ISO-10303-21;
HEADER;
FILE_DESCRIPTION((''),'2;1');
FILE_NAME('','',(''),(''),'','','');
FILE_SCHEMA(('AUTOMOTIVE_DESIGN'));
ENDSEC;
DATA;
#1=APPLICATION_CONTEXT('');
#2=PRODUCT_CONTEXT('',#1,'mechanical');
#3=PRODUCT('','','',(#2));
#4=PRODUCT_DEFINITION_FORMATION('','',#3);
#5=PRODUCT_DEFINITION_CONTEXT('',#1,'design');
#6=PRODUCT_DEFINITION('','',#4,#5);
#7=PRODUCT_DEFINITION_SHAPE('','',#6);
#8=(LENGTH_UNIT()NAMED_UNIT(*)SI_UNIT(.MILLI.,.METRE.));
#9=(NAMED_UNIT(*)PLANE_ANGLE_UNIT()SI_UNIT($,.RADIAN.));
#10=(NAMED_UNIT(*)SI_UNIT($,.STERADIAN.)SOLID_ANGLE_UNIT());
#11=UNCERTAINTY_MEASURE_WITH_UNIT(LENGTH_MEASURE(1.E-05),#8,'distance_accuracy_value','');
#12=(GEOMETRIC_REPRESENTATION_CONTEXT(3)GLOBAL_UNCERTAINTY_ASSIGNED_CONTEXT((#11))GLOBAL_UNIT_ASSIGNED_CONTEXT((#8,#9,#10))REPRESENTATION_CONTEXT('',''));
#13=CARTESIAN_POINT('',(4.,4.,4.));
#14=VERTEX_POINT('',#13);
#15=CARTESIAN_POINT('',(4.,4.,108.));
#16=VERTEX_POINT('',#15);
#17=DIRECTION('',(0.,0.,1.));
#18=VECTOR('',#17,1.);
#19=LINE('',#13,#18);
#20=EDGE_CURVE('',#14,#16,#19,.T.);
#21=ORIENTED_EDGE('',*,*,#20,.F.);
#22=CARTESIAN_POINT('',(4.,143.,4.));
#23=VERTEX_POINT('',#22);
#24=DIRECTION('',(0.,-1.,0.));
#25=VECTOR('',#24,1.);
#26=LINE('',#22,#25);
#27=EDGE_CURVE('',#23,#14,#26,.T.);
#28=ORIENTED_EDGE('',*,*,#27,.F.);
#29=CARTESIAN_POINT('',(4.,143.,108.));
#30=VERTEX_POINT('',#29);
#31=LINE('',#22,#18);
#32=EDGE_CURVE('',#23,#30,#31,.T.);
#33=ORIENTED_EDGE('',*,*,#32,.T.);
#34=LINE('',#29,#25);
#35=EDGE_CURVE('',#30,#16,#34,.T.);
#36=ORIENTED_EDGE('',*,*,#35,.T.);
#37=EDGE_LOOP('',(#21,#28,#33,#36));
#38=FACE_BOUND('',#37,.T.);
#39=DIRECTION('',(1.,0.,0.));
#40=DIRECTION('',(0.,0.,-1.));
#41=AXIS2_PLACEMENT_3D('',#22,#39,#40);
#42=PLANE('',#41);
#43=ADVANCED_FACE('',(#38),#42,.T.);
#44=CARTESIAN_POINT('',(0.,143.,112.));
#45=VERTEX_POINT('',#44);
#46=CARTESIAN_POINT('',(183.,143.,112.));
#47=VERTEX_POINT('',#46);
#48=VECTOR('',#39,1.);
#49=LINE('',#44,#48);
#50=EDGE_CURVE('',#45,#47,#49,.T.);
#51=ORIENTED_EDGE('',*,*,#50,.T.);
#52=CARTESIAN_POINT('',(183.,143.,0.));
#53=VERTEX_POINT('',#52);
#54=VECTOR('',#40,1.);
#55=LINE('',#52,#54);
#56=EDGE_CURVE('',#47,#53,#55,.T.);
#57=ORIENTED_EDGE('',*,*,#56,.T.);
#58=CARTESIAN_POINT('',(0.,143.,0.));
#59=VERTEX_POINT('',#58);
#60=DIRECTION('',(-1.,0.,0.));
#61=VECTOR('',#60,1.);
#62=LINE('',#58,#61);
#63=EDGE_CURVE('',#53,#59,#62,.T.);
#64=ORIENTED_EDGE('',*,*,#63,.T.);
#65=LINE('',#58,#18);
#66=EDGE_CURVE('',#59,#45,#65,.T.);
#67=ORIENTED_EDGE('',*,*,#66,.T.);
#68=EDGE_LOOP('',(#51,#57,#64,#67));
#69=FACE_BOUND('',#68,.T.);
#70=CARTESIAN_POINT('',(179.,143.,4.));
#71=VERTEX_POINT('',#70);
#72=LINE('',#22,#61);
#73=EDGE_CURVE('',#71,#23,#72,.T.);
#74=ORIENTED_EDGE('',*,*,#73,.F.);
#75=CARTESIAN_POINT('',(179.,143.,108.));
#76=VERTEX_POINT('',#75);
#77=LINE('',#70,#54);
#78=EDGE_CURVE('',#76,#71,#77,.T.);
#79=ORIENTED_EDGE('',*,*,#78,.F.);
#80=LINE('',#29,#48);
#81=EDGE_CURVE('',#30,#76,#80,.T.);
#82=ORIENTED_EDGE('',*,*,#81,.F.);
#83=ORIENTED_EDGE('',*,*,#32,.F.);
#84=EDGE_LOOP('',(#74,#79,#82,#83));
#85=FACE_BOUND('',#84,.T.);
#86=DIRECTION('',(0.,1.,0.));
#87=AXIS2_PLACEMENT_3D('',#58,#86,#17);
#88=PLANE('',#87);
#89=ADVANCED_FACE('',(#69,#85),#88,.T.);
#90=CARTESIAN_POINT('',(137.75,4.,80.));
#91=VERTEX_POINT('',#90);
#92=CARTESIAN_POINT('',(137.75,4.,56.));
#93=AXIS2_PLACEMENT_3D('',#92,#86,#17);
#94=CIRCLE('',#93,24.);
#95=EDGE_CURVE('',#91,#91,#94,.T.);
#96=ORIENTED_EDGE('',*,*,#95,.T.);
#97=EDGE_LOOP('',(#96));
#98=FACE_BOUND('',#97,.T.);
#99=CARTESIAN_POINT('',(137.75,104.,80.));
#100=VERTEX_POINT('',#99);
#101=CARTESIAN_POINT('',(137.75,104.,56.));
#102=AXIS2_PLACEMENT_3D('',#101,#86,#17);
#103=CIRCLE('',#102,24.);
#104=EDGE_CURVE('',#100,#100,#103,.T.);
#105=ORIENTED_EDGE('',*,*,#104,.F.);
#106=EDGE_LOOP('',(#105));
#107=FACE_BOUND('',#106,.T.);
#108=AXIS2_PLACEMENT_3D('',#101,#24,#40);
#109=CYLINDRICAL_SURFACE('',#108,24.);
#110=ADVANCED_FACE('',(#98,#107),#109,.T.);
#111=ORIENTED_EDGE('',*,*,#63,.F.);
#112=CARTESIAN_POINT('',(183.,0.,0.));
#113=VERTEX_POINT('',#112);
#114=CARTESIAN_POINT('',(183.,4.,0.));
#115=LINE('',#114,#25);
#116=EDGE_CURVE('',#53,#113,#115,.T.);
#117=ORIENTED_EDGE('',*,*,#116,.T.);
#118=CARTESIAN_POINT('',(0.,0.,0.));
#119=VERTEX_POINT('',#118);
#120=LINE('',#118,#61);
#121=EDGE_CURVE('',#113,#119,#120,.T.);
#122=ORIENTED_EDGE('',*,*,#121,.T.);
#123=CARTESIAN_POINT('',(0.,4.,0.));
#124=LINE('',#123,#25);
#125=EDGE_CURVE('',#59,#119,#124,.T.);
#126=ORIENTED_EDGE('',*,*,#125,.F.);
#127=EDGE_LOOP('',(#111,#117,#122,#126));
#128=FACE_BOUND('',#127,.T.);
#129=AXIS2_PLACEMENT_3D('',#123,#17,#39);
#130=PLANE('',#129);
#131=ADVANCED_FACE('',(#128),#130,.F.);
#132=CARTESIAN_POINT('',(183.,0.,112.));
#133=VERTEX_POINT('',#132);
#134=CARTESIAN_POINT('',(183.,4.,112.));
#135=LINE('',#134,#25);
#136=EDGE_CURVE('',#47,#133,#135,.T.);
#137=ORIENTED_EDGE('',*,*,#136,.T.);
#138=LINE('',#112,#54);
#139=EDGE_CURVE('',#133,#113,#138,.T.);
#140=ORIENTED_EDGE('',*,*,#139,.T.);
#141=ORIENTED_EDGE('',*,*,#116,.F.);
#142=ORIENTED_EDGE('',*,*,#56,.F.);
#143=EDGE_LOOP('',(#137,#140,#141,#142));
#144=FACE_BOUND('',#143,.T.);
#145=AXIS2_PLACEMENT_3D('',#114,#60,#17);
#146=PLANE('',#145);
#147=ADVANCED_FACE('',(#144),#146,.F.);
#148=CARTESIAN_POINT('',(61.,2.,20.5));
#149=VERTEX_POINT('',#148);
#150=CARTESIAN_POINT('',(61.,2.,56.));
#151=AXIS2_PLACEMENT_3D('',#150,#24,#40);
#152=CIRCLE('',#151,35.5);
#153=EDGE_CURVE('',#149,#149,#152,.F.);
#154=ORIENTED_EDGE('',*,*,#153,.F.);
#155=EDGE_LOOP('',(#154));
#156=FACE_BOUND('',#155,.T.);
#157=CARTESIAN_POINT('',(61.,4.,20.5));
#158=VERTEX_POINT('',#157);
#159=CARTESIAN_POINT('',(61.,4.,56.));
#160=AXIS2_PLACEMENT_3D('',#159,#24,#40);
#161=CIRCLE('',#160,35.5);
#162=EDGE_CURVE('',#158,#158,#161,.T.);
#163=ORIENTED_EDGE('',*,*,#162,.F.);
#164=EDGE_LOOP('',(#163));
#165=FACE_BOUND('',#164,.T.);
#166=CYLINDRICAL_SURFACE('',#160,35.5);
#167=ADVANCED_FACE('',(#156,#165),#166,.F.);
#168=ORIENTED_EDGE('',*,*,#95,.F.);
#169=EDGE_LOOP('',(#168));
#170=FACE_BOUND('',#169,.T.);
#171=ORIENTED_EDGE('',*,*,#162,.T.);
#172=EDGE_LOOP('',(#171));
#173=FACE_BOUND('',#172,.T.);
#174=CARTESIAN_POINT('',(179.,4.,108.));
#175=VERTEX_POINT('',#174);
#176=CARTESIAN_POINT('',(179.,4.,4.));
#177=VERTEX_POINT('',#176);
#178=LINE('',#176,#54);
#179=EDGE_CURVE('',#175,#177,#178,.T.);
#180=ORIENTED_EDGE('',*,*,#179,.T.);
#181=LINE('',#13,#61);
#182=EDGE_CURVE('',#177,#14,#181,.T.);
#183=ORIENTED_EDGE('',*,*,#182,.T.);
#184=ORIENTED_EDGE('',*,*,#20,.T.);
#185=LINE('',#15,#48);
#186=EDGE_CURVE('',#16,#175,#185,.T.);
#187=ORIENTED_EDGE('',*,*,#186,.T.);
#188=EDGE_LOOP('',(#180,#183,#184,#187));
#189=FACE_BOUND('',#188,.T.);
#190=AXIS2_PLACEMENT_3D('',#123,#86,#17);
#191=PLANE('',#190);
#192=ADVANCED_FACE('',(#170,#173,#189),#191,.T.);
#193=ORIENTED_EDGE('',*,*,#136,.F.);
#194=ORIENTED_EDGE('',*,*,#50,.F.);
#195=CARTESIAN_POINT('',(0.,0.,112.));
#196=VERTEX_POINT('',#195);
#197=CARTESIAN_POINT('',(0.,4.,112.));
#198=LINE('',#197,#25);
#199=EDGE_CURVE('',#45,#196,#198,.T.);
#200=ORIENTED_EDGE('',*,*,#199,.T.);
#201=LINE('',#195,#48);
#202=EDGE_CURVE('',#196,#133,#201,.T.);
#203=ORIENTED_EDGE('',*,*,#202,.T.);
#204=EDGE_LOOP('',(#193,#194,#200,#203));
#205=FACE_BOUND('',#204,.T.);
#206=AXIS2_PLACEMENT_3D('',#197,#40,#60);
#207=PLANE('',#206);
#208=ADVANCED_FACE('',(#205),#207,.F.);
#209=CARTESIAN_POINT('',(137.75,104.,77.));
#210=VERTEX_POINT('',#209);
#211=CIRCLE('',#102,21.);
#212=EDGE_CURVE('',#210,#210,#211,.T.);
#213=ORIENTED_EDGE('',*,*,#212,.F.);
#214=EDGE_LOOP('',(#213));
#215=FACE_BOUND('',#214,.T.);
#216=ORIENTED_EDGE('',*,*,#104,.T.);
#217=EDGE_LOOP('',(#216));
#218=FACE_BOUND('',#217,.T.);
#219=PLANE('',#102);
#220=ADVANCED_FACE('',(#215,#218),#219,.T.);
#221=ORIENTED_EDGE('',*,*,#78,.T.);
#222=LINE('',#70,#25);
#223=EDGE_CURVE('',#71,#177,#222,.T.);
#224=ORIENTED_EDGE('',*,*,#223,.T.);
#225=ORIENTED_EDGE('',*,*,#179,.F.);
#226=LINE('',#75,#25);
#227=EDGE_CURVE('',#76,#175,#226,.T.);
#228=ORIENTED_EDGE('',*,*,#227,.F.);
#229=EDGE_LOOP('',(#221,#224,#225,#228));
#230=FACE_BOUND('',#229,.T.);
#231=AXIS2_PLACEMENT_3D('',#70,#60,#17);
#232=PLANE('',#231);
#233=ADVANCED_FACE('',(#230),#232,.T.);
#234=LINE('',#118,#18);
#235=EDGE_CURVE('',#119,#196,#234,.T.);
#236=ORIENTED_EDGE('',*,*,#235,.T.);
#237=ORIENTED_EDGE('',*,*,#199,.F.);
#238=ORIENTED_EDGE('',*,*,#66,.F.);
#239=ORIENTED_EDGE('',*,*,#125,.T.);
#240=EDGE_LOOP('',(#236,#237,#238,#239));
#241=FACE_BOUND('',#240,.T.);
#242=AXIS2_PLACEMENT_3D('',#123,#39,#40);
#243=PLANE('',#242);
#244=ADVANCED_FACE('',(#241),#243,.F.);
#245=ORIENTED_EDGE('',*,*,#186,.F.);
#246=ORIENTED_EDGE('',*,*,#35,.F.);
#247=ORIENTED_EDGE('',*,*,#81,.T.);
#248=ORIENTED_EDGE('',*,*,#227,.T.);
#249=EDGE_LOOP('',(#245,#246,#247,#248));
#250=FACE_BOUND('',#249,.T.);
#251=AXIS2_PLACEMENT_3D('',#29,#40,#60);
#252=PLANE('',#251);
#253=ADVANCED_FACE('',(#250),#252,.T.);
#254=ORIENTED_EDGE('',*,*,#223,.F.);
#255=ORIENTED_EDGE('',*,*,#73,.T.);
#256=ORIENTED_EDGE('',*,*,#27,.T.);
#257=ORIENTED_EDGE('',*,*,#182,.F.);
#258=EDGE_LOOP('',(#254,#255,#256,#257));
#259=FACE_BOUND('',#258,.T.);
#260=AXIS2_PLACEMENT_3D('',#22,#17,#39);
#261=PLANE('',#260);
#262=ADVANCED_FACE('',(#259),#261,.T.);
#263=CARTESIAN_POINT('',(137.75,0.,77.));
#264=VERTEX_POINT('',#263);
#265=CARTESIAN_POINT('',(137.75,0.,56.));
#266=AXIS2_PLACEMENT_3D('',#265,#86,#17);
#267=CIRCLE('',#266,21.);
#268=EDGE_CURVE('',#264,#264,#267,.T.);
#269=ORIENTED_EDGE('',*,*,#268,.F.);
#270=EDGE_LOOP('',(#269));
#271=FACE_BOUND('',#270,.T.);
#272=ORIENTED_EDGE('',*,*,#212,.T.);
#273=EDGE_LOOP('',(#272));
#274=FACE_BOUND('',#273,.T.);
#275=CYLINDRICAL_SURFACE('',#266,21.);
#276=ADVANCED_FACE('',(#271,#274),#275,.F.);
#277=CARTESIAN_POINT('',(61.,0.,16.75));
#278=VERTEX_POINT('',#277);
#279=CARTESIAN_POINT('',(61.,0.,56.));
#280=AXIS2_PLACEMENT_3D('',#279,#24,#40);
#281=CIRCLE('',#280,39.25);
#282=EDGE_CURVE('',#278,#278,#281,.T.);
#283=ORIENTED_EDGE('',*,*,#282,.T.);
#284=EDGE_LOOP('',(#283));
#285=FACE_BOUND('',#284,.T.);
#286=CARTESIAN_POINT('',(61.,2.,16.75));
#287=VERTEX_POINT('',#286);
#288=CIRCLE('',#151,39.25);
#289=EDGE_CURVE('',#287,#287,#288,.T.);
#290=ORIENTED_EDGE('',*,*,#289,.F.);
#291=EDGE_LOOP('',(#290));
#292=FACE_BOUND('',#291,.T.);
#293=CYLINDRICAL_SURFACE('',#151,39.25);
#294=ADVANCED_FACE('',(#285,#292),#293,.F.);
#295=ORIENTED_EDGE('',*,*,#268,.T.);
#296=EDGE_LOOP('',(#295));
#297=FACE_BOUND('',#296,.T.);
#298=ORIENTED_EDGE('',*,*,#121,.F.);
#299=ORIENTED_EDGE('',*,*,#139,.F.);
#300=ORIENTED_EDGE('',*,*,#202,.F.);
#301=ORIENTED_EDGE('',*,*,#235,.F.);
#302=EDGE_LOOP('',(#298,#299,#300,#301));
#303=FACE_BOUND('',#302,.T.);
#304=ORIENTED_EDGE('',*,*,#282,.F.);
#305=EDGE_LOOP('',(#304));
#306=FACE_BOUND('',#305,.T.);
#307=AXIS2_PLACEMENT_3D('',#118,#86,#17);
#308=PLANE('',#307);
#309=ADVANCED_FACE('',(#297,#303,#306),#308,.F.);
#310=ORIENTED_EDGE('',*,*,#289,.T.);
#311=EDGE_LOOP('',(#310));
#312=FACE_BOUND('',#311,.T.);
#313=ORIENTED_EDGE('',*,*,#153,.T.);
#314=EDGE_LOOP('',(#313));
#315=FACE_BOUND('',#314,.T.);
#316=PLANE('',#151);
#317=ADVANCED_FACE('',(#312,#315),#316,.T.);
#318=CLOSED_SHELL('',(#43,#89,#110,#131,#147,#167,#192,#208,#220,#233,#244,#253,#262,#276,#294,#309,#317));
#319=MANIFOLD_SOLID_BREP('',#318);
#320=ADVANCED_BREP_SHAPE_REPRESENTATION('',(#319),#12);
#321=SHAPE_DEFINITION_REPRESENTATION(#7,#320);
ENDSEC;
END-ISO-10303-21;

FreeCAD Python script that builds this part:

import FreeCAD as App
import Part
import Sketcher
from FreeCAD import Vector

doc = App.newDocument("Part")
body = doc.addObject("PartDesign::Body", "Body")

sketch1 = doc.addObject("Sketcher::SketchObject", "Sketch")
body.addObject(sketch1)
sketch1.AttachmentSupport = (doc.XZ_Plane, [""])
sketch1.MapMode = "FlatFace"
sketch1.addGeometry(Part.LineSegment(Vector(0, 0, 0), Vector(0, 112, 0)), False)
sketch1.addGeometry(Part.LineSegment(Vector(0, 112, 0), Vector(183, 112, 0)), False)
sketch1.addGeometry(Part.LineSegment(Vector(183, 112, 0), Vector(183, 0, 0)), False)
sketch1.addGeometry(Part.LineSegment(Vector(183, 0, 0), Vector(0, 0, 0)), False)
sketch1.addConstraint(Sketcher.Constraint("Coincident", 0, 2, 1, 1))
sketch1.addConstraint(Sketcher.Constraint("Coincident", 1, 2, 2, 1))
sketch1.addConstraint(Sketcher.Constraint("Coincident", 2, 2, 3, 1))
sketch1.addConstraint(Sketcher.Constraint("Coincident", 3, 2, 0, 1))
sketch1.addConstraint(Sketcher.Constraint("Vertical", 0))
sketch1.addConstraint(Sketcher.Constraint("Horizontal", 1))
sketch1.addConstraint(Sketcher.Constraint("Vertical", 2))
sketch1.addConstraint(Sketcher.Constraint("Horizontal", 3))
sketch1.addConstraint(Sketcher.Constraint("Coincident", 3, 2, -1, 1))
sketch1.addConstraint(Sketcher.Constraint("DistanceX", 1, 1, 1, 2, 183.0))
sketch1.addConstraint(Sketcher.Constraint("DistanceY", 0, 1, 0, 2, 112.0))
pad1 = doc.addObject("PartDesign::Pad", "Pad")
body.addObject(pad1)
pad1.Profile = sketch1
pad1.Length = 4
pad1.Reversed = True

sketch2 = doc.addObject("Sketcher::SketchObject", "Sketch001")
body.addObject(sketch2)
sketch2.AttachmentSupport = (doc.XZ_Plane, [""])
sketch2.MapMode = "FlatFace"
sketch2.AttachmentOffset = App.Placement(Vector(0, 0, -4), App.Rotation())
sketch2.addGeometry(Part.LineSegment(Vector(0, 0, 0), Vector(0, 112, 0)), False)
sketch2.addGeometry(Part.LineSegment(Vector(0, 112, 0), Vector(183, 112, 0)), False)
sketch2.addGeometry(Part.LineSegment(Vector(183, 112, 0), Vector(183, 0, 0)), False)
sketch2.addGeometry(Part.LineSegment(Vector(183, 0, 0), Vector(0, 0, 0)), False)
sketch2.addGeometry(Part.LineSegment(Vector(179, 108, 0), Vector(4, 108, 0)), False)
sketch2.addGeometry(Part.LineSegment(Vector(4, 108, 0), Vector(4, 4, 0)), False)
sketch2.addGeometry(Part.LineSegment(Vector(4, 4, 0), Vector(179, 4, 0)), False)
sketch2.addGeometry(Part.LineSegment(Vector(179, 4, 0), Vector(179, 108, 0)), False)
sketch2.addConstraint(Sketcher.Constraint("Coincident", 0, 2, 1, 1))
sketch2.addConstraint(Sketcher.Constraint("Coincident", 1, 2, 2, 1))
sketch2.addConstraint(Sketcher.Constraint("Coincident", 2, 2, 3, 1))
sketch2.addConstraint(Sketcher.Constraint("Coincident", 3, 2, 0, 1))
sketch2.addConstraint(Sketcher.Constraint("Coincident", 4, 2, 5, 1))
sketch2.addConstraint(Sketcher.Constraint("Coincident", 5, 2, 6, 1))
sketch2.addConstraint(Sketcher.Constraint("Coincident", 6, 2, 7, 1))
sketch2.addConstraint(Sketcher.Constraint("Coincident", 7, 2, 4, 1))
sketch2.addConstraint(Sketcher.Constraint("Vertical", 0))
sketch2.addConstraint(Sketcher.Constraint("Horizontal", 1))
sketch2.addConstraint(Sketcher.Constraint("Vertical", 2))
sketch2.addConstraint(Sketcher.Constraint("Horizontal", 3))
sketch2.addConstraint(Sketcher.Constraint("Horizontal", 4))
sketch2.addConstraint(Sketcher.Constraint("Vertical", 5))
sketch2.addConstraint(Sketcher.Constraint("Horizontal", 6))
sketch2.addConstraint(Sketcher.Constraint("Vertical", 7))
sketch2.addConstraint(Sketcher.Constraint("Coincident", 3, 2, -1, 1))
sketch2.addConstraint(Sketcher.Constraint("DistanceX", 1, 1, 1, 2, 183.0))
sketch2.addConstraint(Sketcher.Constraint("DistanceX", 4, 2, 4, 1, 175.0))
sketch2.addConstraint(Sketcher.Constraint("DistanceY", 0, 1, 0, 2, 112.0))
sketch2.addConstraint(Sketcher.Constraint("DistanceY", 5, 2, 5, 1, 104.0))
sketch2.addConstraint(Sketcher.Constraint("DistanceX", -1, 1, 4, 2, 4.0))
sketch2.addConstraint(Sketcher.Constraint("DistanceY", -1, 1, 4, 2, 108.0))
pad2 = doc.addObject("PartDesign::Pad", "Pad001")
body.addObject(pad2)
pad2.Profile = sketch2
pad2.Length = 139
pad2.Reversed = True

sketch3 = doc.addObject("Sketcher::SketchObject", "Sketch002")
body.addObject(sketch3)
sketch3.AttachmentSupport = (doc.XZ_Plane, [""])
sketch3.MapMode = "FlatFace"
sketch3.addGeometry(Part.Circle(Vector(61, 56, 0), Vector(0, 0, 1), 36), False)
sketch3.addConstraint(Sketcher.Constraint("Diameter", 0, 71.0))
sketch3.addConstraint(Sketcher.Constraint("DistanceX", -1, 1, 0, 3, 61.0))
sketch3.addConstraint(Sketcher.Constraint("DistanceY", -1, 1, 0, 3, 56.0))
pocket1 = doc.addObject("PartDesign::Pocket", "Pocket")
body.addObject(pocket1)
pocket1.Profile = sketch3
pocket1.Length = 4

sketch4 = doc.addObject("Sketcher::SketchObject", "Sketch003")
body.addObject(sketch4)
sketch4.AttachmentSupport = (doc.XZ_Plane, [""])
sketch4.MapMode = "FlatFace"
sketch4.addGeometry(Part.Circle(Vector(61, 56, 0), Vector(0, 0, 1), 39), False)
sketch4.addConstraint(Sketcher.Constraint("Diameter", 0, 78.5))
sketch4.addConstraint(Sketcher.Constraint("DistanceX", -1, 1, 0, 3, 61.0))
sketch4.addConstraint(Sketcher.Constraint("DistanceY", -1, 1, 0, 3, 56.0))
pocket2 = doc.addObject("PartDesign::Pocket", "Pocket001")
body.addObject(pocket2)
pocket2.Profile = sketch4
pocket2.Length = 2

sketch5 = doc.addObject("Sketcher::SketchObject", "Sketch004")
body.addObject(sketch5)
sketch5.AttachmentSupport = (doc.XZ_Plane, [""])
sketch5.MapMode = "FlatFace"
sketch5.AttachmentOffset = App.Placement(Vector(0, 0, -4), App.Rotation())
sketch5.addGeometry(Part.Circle(Vector(138, 56, 0), Vector(0, 0, 1), 21), False)
sketch5.addConstraint(Sketcher.Constraint("Diameter", 0, 42.0))
sketch5.addConstraint(Sketcher.Constraint("DistanceY", -1, 1, 0, 3, 56.0))
sketch5.addConstraint(Sketcher.Constraint("DistanceX", -1, 1, 0, 3, 137.75))
pocket3 = doc.addObject("PartDesign::Pocket", "Pocket002")
body.addObject(pocket3)
pocket3.Profile = sketch5
pocket3.Length = 4
pocket3.Reversed = True

sketch6 = doc.addObject("Sketcher::SketchObject", "Sketch005")
body.addObject(sketch6)
sketch6.AttachmentSupport = (doc.XZ_Plane, [""])
sketch6.MapMode = "FlatFace"
sketch6.AttachmentOffset = App.Placement(Vector(0, 0, -104), App.Rotation())
sketch6.addGeometry(Part.Circle(Vector(138, 56, 0), Vector(0, 0, 1), 24), False)
sketch6.addGeometry(Part.Circle(Vector(138, 56, 0), Vector(0, 0, 1), 21), False)
sketch6.addConstraint(Sketcher.Constraint("Coincident", 1, 3, 0, 3))
sketch6.addConstraint(Sketcher.Constraint("Diameter", 0, 48.0))
sketch6.addConstraint(Sketcher.Constraint("Diameter", 1, 42.0))
sketch6.addConstraint(Sketcher.Constraint("DistanceY", -1, 1, 0, 3, 56.0))
sketch6.addConstraint(Sketcher.Constraint("DistanceX", -1, 1, 0, 3, 137.75))
pad3 = doc.addObject("PartDesign::Pad", "Pad002")
body.addObject(pad3)
pad3.Profile = sketch6
pad3.Length = 100

doc.recompute()
